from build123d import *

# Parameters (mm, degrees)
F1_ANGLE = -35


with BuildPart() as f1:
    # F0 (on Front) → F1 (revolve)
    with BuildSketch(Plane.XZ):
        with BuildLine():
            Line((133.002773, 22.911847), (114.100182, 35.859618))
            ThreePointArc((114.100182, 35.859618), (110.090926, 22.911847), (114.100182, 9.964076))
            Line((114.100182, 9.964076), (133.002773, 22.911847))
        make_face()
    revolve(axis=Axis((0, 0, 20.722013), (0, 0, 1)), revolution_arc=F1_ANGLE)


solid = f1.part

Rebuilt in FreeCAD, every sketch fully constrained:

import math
import FreeCAD as App
import Part
import Sketcher
from FreeCAD import Vector

doc = App.newDocument("Part")
body = doc.addObject("PartDesign::Body", "Body")

sketch1 = body.newObject("Sketcher::SketchObject", "Sketch")
sketch1.AttachmentSupport = (doc.getObject("XZ_Plane"), [""])
sketch1.MapMode = "FlatFace"
sketch1.addGeometry([
    Part.LineSegment(Vector(133, 23, 0), Vector(114, 36, 0)),
    Part.ArcOfCircle(Part.Circle(Vector(133, 23, 0), Vector(0, 0, 1), 23), math.radians(146), math.radians(214)),
    Part.LineSegment(Vector(114, 10, 0), Vector(133, 23, 0)),
], False)
sketch1.addConstraint([
    Sketcher.Constraint("Coincident", 0, 2, 1, 1),
    Sketcher.Constraint("Coincident", 1, 2, 2, 1),
    Sketcher.Constraint("Coincident", 2, 2, 0, 1),
    Sketcher.Constraint("Coincident", 2, 2, 1, 3),
    Sketcher.Constraint("Vertical", 0, 2, 1, 2),
    Sketcher.Constraint("Radius", 1, 22.911845),
    Sketcher.Constraint("DistanceX", -1, 1, 1, 3, 133.002771),
    Sketcher.Constraint("DistanceX", 0, 2, 1, 3, 18.902589),
    Sketcher.Constraint("DistanceY", -1, 1, 1, 3, 22.911847),
])
revolution = body.newObject("PartDesign::Revolution", "Revolution")
revolution.Profile = sketch1
revolution.ReferenceAxis = (sketch1, ["V_Axis"])
revolution.Angle = 35
revolution.Reversed = True

doc.recompute()
